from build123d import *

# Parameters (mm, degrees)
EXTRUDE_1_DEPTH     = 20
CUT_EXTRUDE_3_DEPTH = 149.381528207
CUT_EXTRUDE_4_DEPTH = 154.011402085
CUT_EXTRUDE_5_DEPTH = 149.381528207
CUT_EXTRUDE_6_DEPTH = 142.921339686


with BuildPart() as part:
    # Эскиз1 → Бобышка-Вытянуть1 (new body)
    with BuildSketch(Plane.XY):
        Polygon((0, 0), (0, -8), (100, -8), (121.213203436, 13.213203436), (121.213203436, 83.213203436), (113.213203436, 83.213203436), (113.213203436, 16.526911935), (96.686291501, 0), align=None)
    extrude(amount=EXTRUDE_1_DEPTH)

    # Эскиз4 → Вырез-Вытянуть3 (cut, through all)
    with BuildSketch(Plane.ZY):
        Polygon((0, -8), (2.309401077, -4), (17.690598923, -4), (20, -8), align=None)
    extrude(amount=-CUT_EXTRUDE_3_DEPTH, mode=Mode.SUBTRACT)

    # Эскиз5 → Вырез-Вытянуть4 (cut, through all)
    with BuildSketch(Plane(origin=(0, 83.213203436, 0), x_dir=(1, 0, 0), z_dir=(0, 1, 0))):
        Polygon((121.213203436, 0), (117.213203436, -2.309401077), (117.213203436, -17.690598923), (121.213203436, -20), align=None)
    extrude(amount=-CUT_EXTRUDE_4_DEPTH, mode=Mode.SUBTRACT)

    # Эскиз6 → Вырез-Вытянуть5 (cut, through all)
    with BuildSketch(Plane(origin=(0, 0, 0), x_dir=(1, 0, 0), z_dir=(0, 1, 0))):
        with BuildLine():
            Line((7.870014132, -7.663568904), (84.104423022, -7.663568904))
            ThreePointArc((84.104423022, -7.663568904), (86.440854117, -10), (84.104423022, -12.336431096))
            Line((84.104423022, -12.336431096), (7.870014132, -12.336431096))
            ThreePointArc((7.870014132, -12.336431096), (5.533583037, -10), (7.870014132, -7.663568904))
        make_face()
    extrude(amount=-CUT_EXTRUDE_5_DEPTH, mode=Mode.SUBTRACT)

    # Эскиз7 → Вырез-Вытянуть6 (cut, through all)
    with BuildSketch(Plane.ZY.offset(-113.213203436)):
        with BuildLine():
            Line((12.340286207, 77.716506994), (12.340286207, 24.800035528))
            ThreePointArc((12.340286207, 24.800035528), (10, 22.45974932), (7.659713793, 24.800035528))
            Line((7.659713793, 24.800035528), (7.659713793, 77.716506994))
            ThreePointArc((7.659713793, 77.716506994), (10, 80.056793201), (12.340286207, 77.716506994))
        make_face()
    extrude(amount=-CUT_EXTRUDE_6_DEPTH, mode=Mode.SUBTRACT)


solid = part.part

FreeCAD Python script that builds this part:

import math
import FreeCAD as App
import Part
import Sketcher
from FreeCAD import Vector
Q = App.Units.Quantity


def add_polygon(sketch, points):
    """Adds a closed chain of lines whose ends are joined by coincident constraints."""
    first, n = sketch.GeometryCount, len(points)
    for a, b in zip(points, points[1:] + points[:1]):
        sketch.addGeometry(Part.LineSegment(App.Vector(*a, 0), App.Vector(*b, 0)), False)
    for i in range(n):
        sketch.addConstraint(Sketcher.Constraint("Coincident", first + i, 2, first + (i + 1) % n, 1))

doc = App.newDocument("Part")
body = doc.addObject("PartDesign::Body", "Body")

# Sketch on XY plane
sketch1 = body.newObject("Sketcher::SketchObject", "Sketch")
sketch1.AttachmentSupport = (doc.getObject("XY_Plane"), [""])
sketch1.MapMode = "FlatFace"
add_polygon(sketch1, [(0, 0), (0, -8), (100, -8), (121, 13), (121, 83), (113, 83), (113, 17), (97, 0)])  # lines 0-7
sketch1.addConstraint([
    Sketcher.Constraint("Vertical", 0),
    Sketcher.Constraint("Horizontal", 1),
    Sketcher.Constraint("Vertical", 3),
    Sketcher.Constraint("Horizontal", 4),
    Sketcher.Constraint("Vertical", 5),
    Sketcher.Constraint("Horizontal", 7),
    Sketcher.Constraint("Coincident", 7, 2, -1, 1),
    Sketcher.Constraint("Parallel", 2, 6),
    Sketcher.Constraint("Equal", 4, 0),
    Sketcher.Constraint("DistanceX", 1, 1, 1, 2, 100.0),
    Sketcher.Constraint("DistanceX", 4, 2, 4, 1, 8.0),
    Sketcher.Constraint("DistanceY", 3, 1, 3, 2, 70.0),
    Sketcher.Constraint("Angle", 2, Q("45 deg")),
    Sketcher.Constraint("Distance", 2, 30.0),
    Sketcher.Constraint("DistanceX", 7, 2, 7, 1, 96.686292),
])
pad1 = body.newObject("PartDesign::Pad", "Pad")
pad1.Profile = sketch1
pad1.Length = 20

# Sketch on YZ plane
sketch2 = body.newObject("Sketcher::SketchObject", "Sketch001")
sketch2.AttachmentSupport = (doc.getObject("YZ_Plane"), [""])
sketch2.MapMode = "FlatFace"
add_polygon(sketch2, [(-4, 2.3), (-8, 0), (-8, 20), (-4, 17.7)])  # lines 0-3
sketch2.addConstraint([
    Sketcher.Constraint("Vertical", 1),
    Sketcher.Constraint("Vertical", 3),
    Sketcher.Constraint("PointOnObject", 0, 2, -1),
    Sketcher.Constraint("Equal", 0, 2),
    Sketcher.Constraint("DistanceY", 1, 1, 1, 2, 20.0),
    Sketcher.Constraint("Angle", 0, Q("-150 deg")),
    Sketcher.Constraint("DistanceX", 0, 2, -1, 1, 8.0),
    Sketcher.Constraint("DistanceX", 2, 2, -1, 1, 4.0),
])
pocket1 = body.newObject("PartDesign::Pocket", "Pocket")
pocket1.Profile = sketch2
pocket1.Type = "ThroughAll"
pocket1.Reversed = True

# Sketch on XZ plane
sketch3 = body.newObject("Sketcher::SketchObject", "Sketch002")
sketch3.AttachmentSupport = (doc.getObject("XZ_Plane"), [""])
sketch3.MapMode = "FlatFace"
sketch3.AttachmentOffset = App.Placement(Vector(0, 0, -83.213203), App.Rotation())
add_polygon(sketch3, [(121.2, 0), (117.2, 2.3), (117.2, 17.7), (121.2, 20)])  # lines 0-3
sketch3.addConstraint([
    Sketcher.Constraint("Vertical", 1),
    Sketcher.Constraint("Vertical", 3),
    Sketcher.Constraint("PointOnObject", 3, 2, -1),
    Sketcher.Constraint("Equal", 0, 2),
    Sketcher.Constraint("DistanceY", 3, 2, 3, 1, 20.0),
    Sketcher.Constraint("Angle", 0, Q("150 deg")),
    Sketcher.Constraint("DistanceX", 1, 2, 2, 2, 4.0),
    Sketcher.Constraint("DistanceX", -1, 1, 0, 2, 117.213203),
])
pocket2 = body.newObject("PartDesign::Pocket", "Pocket001")
pocket2.Profile = sketch3
pocket2.Type = "ThroughAll"
pocket2.Reversed = True

# Sketch on XZ plane
sketch4 = body.newObject("Sketcher::SketchObject", "Sketch003")
sketch4.AttachmentSupport = (doc.getObject("XZ_Plane"), [""])
sketch4.MapMode = "FlatFace"
sketch4.addGeometry([
    Part.LineSegment(Vector(84.1, 7.7, 0), Vector(7.9, 7.7, 0)),
    Part.ArcOfCircle(Part.Circle(Vector(7.9, 10, 0), Vector(0, 0, 1), 2.3), math.radians(90), math.radians(270)),
    Part.LineSegment(Vector(7.9, 12.3, 0), Vector(84.1, 12.3, 0)),
    Part.ArcOfCircle(Part.Circle(Vector(84.1, 10, 0), Vector(0, 0, 1), 2.3), math.radians(-90), math.radians(90)),
], False)
sketch4.addConstraint([
    Sketcher.Constraint("Tangent", 0, 2, 1, 2),
    Sketcher.Constraint("Tangent", 1, 1, 2, 1),
    Sketcher.Constraint("Tangent", 2, 2, 3, 2),
    Sketcher.Constraint("Tangent", 3, 1, 0, 1),
    Sketcher.Constraint("Horizontal", 0),
    Sketcher.Constraint("Horizontal", 2),
    Sketcher.Constraint("DistanceY", -1, 1, 1, 3, 10.0),
    Sketcher.Constraint("Radius", 1, 2.336431),
    Sketcher.Constraint("DistanceX", 0, 2, 0, 1, 76.234409),
    Sketcher.Constraint("DistanceX", -1, 1, 1, 3, 7.870014),
])
pocket3 = body.newObject("PartDesign::Pocket", "Pocket002")
pocket3.Profile = sketch4
pocket3.Type = "ThroughAll"
pocket3.Reversed = True

# Sketch on YZ plane
sketch5 = body.newObject("Sketcher::SketchObject", "Sketch004")
sketch5.AttachmentSupport = (doc.getObject("YZ_Plane"), [""])
sketch5.MapMode = "FlatFace"
sketch5.AttachmentOffset = App.Placement(Vector(0, 0, 113.213203), App.Rotation())
sketch5.addGeometry([
    Part.LineSegment(Vector(24.8, 12.3, 0), Vector(77.7, 12.3, 0)),
    Part.ArcOfCircle(Part.Circle(Vector(77.7, 10, 0), Vector(0, 0, 1), 2.3), math.radians(-90), math.radians(90)),
    Part.LineSegment(Vector(77.7, 7.7, 0), Vector(24.8, 7.7, 0)),
    Part.ArcOfCircle(Part.Circle(Vector(24.8, 10, 0), Vector(0, 0, 1), 2.3), math.radians(90), math.radians(270)),
], False)
sketch5.addConstraint([
    Sketcher.Constraint("Tangent", 0, 2, 1, 2),
    Sketcher.Constraint("Tangent", 1, 1, 2, 1),
    Sketcher.Constraint("Tangent", 2, 2, 3, 2),
    Sketcher.Constraint("Tangent", 3, 1, 0, 1),
    Sketcher.Constraint("Horizontal", 0),
    Sketcher.Constraint("Horizontal", 2),
    Sketcher.Constraint("DistanceY", -1, 1, 1, 3, 10.0),
    Sketcher.Constraint("Radius", 1, 2.340286),
    Sketcher.Constraint("DistanceX", 0, 1, 0, 2, 52.916471),
    Sketcher.Constraint("DistanceX", -1, 1, 1, 3, 77.716507),
])
pocket4 = body.newObject("PartDesign::Pocket", "Pocket003")
pocket4.Profile = sketch5
pocket4.Type = "ThroughAll"
pocket4.Reversed = True

doc.recompute()
